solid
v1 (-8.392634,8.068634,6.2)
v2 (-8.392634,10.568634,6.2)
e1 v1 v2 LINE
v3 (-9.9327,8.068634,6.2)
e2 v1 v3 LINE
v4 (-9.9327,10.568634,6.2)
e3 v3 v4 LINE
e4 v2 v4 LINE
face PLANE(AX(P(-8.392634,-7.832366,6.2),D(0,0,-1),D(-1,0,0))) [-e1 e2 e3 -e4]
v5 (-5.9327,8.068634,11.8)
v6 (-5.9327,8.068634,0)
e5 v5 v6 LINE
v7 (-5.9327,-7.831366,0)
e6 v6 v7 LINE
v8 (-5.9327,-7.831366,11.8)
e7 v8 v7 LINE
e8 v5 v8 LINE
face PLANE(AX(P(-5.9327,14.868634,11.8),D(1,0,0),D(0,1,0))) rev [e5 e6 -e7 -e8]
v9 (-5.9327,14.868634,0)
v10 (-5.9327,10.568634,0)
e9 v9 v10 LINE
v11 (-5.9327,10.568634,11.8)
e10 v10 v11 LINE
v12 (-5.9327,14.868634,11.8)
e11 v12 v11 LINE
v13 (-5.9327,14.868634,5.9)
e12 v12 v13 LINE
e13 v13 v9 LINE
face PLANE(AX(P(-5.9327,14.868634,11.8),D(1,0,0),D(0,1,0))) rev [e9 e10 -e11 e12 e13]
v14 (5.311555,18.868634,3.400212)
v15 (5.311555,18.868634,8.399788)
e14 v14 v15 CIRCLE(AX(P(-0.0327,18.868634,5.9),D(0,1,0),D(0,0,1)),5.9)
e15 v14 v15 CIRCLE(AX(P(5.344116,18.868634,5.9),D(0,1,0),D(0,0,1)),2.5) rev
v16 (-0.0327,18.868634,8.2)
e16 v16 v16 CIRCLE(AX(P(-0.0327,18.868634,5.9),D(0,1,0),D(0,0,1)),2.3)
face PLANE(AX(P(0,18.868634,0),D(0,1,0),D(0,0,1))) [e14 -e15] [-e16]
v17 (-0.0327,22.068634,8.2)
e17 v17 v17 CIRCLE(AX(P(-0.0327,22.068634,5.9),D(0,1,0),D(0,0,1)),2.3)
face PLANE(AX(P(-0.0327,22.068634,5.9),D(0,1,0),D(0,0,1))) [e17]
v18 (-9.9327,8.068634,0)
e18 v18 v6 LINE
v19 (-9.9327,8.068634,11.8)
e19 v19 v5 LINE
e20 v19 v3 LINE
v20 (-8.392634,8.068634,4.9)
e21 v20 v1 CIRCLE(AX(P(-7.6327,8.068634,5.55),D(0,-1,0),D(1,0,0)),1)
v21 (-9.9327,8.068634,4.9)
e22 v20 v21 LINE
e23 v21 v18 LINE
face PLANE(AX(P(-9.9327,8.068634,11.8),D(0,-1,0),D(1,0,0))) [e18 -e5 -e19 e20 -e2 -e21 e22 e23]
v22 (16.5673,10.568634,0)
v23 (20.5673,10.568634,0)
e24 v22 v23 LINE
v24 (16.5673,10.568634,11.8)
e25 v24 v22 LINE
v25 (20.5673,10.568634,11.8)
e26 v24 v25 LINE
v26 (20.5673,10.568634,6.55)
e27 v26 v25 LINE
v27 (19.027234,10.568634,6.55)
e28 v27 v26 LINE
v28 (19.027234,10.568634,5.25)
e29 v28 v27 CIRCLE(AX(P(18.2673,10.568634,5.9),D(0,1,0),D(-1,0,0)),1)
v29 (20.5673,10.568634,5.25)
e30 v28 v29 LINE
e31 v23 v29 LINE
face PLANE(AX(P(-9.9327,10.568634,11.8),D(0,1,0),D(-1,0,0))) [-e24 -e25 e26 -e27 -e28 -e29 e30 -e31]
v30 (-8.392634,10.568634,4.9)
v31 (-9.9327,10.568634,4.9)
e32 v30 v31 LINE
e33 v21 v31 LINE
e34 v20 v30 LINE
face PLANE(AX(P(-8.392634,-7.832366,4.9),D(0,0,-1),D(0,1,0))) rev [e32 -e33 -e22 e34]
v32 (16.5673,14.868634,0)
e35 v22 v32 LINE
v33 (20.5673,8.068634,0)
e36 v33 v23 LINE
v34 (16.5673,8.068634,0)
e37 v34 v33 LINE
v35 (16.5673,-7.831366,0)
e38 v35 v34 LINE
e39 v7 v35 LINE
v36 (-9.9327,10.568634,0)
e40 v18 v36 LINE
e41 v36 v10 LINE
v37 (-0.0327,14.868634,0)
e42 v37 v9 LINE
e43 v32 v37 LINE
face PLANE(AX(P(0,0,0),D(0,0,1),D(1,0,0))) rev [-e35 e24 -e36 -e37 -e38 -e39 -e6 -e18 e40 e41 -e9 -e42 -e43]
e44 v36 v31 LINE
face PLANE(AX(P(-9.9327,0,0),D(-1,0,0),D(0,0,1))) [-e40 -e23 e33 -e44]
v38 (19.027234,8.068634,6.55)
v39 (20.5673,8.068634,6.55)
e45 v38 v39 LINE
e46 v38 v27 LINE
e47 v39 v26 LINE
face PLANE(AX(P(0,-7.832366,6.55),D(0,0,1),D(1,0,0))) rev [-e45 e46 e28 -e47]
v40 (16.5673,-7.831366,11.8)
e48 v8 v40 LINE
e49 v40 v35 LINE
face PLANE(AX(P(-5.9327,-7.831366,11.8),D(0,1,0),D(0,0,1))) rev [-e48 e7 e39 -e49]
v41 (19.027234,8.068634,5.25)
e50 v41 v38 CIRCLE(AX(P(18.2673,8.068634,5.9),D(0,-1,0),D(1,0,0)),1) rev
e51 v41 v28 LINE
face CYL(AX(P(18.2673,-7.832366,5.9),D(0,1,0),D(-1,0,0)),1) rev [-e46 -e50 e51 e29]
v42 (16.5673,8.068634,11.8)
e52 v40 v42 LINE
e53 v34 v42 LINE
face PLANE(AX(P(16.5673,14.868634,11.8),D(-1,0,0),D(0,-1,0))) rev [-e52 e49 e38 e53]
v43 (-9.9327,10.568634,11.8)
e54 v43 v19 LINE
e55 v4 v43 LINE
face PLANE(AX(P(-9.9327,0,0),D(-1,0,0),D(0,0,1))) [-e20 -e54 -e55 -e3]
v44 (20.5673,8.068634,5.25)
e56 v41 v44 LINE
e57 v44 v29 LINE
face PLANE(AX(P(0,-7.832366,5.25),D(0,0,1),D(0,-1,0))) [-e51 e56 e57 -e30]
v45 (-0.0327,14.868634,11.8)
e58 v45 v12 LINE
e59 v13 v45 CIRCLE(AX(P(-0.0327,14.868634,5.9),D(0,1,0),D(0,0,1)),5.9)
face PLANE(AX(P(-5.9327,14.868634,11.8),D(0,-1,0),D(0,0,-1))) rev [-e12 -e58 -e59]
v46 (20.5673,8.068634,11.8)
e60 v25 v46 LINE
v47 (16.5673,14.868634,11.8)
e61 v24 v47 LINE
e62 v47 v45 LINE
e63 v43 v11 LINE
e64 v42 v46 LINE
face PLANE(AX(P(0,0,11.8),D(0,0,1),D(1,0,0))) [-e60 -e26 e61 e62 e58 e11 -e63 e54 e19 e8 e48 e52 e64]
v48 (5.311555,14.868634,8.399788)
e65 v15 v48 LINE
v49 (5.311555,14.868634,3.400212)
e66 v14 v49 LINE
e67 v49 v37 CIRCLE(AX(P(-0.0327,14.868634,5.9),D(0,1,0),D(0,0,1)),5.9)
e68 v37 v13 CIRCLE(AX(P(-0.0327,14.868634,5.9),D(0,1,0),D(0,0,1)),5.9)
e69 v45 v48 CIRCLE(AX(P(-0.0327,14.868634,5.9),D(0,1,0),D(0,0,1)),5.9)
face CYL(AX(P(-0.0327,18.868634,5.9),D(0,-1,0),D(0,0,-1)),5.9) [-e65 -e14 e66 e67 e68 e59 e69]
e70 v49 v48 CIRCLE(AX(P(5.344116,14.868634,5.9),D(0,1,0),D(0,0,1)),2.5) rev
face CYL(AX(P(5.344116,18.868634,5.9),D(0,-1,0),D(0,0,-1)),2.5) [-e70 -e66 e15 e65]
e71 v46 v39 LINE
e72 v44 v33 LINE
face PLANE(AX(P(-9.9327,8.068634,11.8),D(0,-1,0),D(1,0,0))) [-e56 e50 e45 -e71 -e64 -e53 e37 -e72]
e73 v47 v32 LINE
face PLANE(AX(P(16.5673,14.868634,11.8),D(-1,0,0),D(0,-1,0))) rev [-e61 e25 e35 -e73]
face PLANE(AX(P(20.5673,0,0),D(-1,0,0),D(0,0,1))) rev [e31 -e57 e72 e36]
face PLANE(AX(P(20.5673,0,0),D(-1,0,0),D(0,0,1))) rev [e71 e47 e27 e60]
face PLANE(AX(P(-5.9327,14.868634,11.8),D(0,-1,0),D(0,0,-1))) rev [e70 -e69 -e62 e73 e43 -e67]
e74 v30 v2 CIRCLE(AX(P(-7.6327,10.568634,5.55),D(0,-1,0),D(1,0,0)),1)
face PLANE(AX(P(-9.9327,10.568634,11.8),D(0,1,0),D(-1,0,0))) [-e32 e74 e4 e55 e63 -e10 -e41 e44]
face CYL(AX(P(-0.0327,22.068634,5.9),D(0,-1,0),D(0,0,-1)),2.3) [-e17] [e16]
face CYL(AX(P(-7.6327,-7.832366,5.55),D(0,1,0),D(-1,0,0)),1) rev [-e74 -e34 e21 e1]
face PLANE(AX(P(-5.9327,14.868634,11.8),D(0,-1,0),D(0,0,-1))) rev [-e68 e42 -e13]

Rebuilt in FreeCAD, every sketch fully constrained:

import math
import FreeCAD as App
import Part
import Sketcher

V = App.Vector
Q = App.Units.Quantity

doc = App.newDocument("Part")
body = doc.addObject("PartDesign::Body", "Body")

# Sketch on XY plane
sketch1 = body.newObject("Sketcher::SketchObject", "Sketch")
sketch1.AttachmentSupport = (doc.getObject("XY_Plane"), [""])
sketch1.MapMode = "FlatFace"
sketch1.addGeometry(Part.LineSegment(V(-5.9327, 14.868634, 0), V(-5.9327, -7.831366, 0)), False)
sketch1.addGeometry(Part.LineSegment(V(-5.9327, -7.831366, 0), V(16.5673, -7.831366, 0)), False)
sketch1.addGeometry(Part.LineSegment(V(16.5673, -7.831366, 0), V(16.5673, 14.868634, 0)), False)
sketch1.addGeometry(Part.LineSegment(V(16.5673, 14.868634, 0), V(-5.9327, 14.868634, 0)), False)
sketch1.addConstraint(Sketcher.Constraint("Coincident", 0, 2, 1, 1))
sketch1.addConstraint(Sketcher.Constraint("Coincident", 1, 2, 2, 1))
sketch1.addConstraint(Sketcher.Constraint("Coincident", 2, 2, 3, 1))
sketch1.addConstraint(Sketcher.Constraint("Coincident", 3, 2, 0, 1))
sketch1.addConstraint(Sketcher.Constraint("Vertical", 0))
sketch1.addConstraint(Sketcher.Constraint("Horizontal", 1))
sketch1.addConstraint(Sketcher.Constraint("Vertical", 2))
sketch1.addConstraint(Sketcher.Constraint("Horizontal", 3))
sketch1.addConstraint(Sketcher.Constraint("DistanceX", 1, 1, 1, 2, Q("22.5 mm")))
sketch1.addConstraint(Sketcher.Constraint("DistanceY", 0, 2, 0, 1, Q("22.7 mm")))
sketch1.addConstraint(Sketcher.Constraint("DistanceX", 0, 2, -1, 1, Q("5.9327 mm")))
sketch1.addConstraint(Sketcher.Constraint("DistanceY", 0, 2, -1, 1, Q("7.831366 mm")))
pad1 = body.newObject("PartDesign::Pad", "Pad")
pad1.Profile = sketch1
pad1.Length = 11.8

# Sketch on XZ plane
sketch2 = body.newObject("Sketcher::SketchObject", "Sketch001")
sketch2.AttachmentSupport = (doc.getObject("XZ_Plane"), [""])
sketch2.MapMode = "FlatFace"
sketch2.AttachmentOffset = App.Placement(V(0, 0, -14.868634), App.Rotation())
sketch2.addGeometry(Part.ArcOfCircle(Part.Circle(V(-0.0327, 5.9, 0), V(0, 0, 1), 5.9), math.radians(25.067955), math.radians(334.932045)), False)
sketch2.addGeometry(Part.ArcOfCircle(Part.Circle(V(5.344116, 5.9, 0), V(0, 0, 1), 2.5), math.radians(-90.746252), math.radians(90.746252)), False)
sketch2.addConstraint(Sketcher.Constraint("Coincident", 0, 1, 1, 2))
sketch2.addConstraint(Sketcher.Constraint("Coincident", 1, 1, 0, 2))
sketch2.addConstraint(Sketcher.Constraint("Horizontal", 0, 3, 1, 3))
sketch2.addConstraint(Sketcher.Constraint("Radius", 0, Q("5.9 mm")))
sketch2.addConstraint(Sketcher.Constraint("Radius", 1, Q("2.5 mm")))
sketch2.addConstraint(Sketcher.Constraint("DistanceY", -1, 1, 0, 3, Q("5.9 mm")))
sketch2.addConstraint(Sketcher.Constraint("DistanceX", 0, 3, -1, 1, Q("0.0327 mm")))
sketch2.addConstraint(Sketcher.Constraint("DistanceX", 0, 1, 1, 3, Q("0.03256 mm")))
pad2 = body.newObject("PartDesign::Pad", "Pad001")
pad2.Profile = sketch2
pad2.Length = 4
pad2.Reversed = True

# Sketch on XZ plane
sketch3 = body.newObject("Sketcher::SketchObject", "Sketch002")
sketch3.AttachmentSupport = (doc.getObject("XZ_Plane"), [""])
sketch3.MapMode = "FlatFace"
sketch3.AttachmentOffset = App.Placement(V(0, 0, -18.868634), App.Rotation())
sketch3.addGeometry(Part.Circle(V(-0.0327, 5.9, 0), V(0, 0, 1), 2.3), False)
sketch3.addConstraint(Sketcher.Constraint("Diameter", 0, Q("4.6 mm")))
sketch3.addConstraint(Sketcher.Constraint("DistanceY", -1, 1, 0, 3, Q("5.9 mm")))
sketch3.addConstraint(Sketcher.Constraint("DistanceX", 0, 3, -1, 1, Q("0.0327 mm")))
pad3 = body.newObject("PartDesign::Pad", "Pad002")
pad3.Profile = sketch3
pad3.Length = 3.2
pad3.Reversed = True

# Sketch on YZ plane
sketch4 = body.newObject("Sketcher::SketchObject", "Sketch003")
sketch4.AttachmentSupport = (doc.getObject("YZ_Plane"), [""])
sketch4.MapMode = "FlatFace"
sketch4.AttachmentOffset = App.Placement(V(0, 0, 16.5673), App.Rotation())
sketch4.addGeometry(Part.LineSegment(V(10.568634, 11.8, 0), V(8.068634, 11.8, 0)), False)
sketch4.addGeometry(Part.LineSegment(V(8.068634, 11.8, 0), V(8.068634, 0, 0)), False)
sketch4.addGeometry(Part.LineSegment(V(8.068634, 0, 0), V(10.568634, 0, 0)), False)
sketch4.addGeometry(Part.LineSegment(V(10.568634, 0, 0), V(10.568634, 11.8, 0)), False)
sketch4.addConstraint(Sketcher.Constraint("Coincident", 0, 2, 1, 1))
sketch4.addConstraint(Sketcher.Constraint("Coincident", 1, 2, 2, 1))
sketch4.addConstraint(Sketcher.Constraint("Coincident", 2, 2, 3, 1))
sketch4.addConstraint(Sketcher.Constraint("Coincident", 3, 2, 0, 1))
sketch4.addConstraint(Sketcher.Constraint("Horizontal", 0))
sketch4.addConstraint(Sketcher.Constraint("Vertical", 1))
sketch4.addConstraint(Sketcher.Constraint("Horizontal", 2))
sketch4.addConstraint(Sketcher.Constraint("Vertical", 3))
sketch4.addConstraint(Sketcher.Constraint("PointOnObject", 1, 2, -1))
sketch4.addConstraint(Sketcher.Constraint("DistanceX", 0, 2, 0, 1, Q("2.5 mm")))
sketch4.addConstraint(Sketcher.Constraint("DistanceY", 1, 2, 1, 1, Q("11.8 mm")))
sketch4.addConstraint(Sketcher.Constraint("DistanceX", -1, 1, 0, 2, Q("8.068634 mm")))
pad4 = body.newObject("PartDesign::Pad", "Pad003")
pad4.Profile = sketch4
pad4.Type = "TwoLengths"
pad4.Length = 4
pad4.Length2 = 26.5

# Sketch on XZ plane
sketch5 = body.newObject("Sketcher::SketchObject", "Sketch004")
sketch5.AttachmentSupport = (doc.getObject("XZ_Plane"), [""])
sketch5.MapMode = "FlatFace"
sketch5.AttachmentOffset = App.Placement(V(0, 0, -10.568634), App.Rotation())
sketch5.addGeometry(Part.LineSegment(V(20.5673, 6.55, 0), V(20.5673, 5.25, 0)), False)
sketch5.addGeometry(Part.LineSegment(V(20.5673, 5.25, 0), V(19.027234, 5.25, 0)), False)
sketch5.addGeometry(Part.ArcOfCircle(Part.Circle(V(18.2673, 5.9, 0), V(0, 0, 1), 1), math.radians(40.541602), math.radians(319.458398)), False)
sketch5.addGeometry(Part.LineSegment(V(19.027234, 6.55, 0), V(20.5673, 6.55, 0)), False)
sketch5.addConstraint(Sketcher.Constraint("Coincident", 0, 2, 1, 1))
sketch5.addConstraint(Sketcher.Constraint("Coincident", 1, 2, 2, 2))
sketch5.addConstraint(Sketcher.Constraint("Coincident", 2, 1, 3, 1))
sketch5.addConstraint(Sketcher.Constraint("Coincident", 3, 2, 0, 1))
sketch5.addConstraint(Sketcher.Constraint("Vertical", 0))
sketch5.addConstraint(Sketcher.Constraint("Horizontal", 1))
sketch5.addConstraint(Sketcher.Constraint("Horizontal", 3))
sketch5.addConstraint(Sketcher.Constraint("Vertical", 1, 2, 2, 1))
sketch5.addConstraint(Sketcher.Constraint("Radius", 2, Q("1 mm")))
sketch5.addConstraint(Sketcher.Constraint("DistanceY", 0, 2, 0, 1, Q("1.3 mm")))
sketch5.addConstraint(Sketcher.Constraint("DistanceY", -1, 1, 2, 3, Q("5.9 mm")))
sketch5.addConstraint(Sketcher.Constraint("DistanceX", 2, 3, 0, 2, Q("2.3 mm")))
sketch5.addConstraint(Sketcher.Constraint("DistanceX", -1, 1, 2, 3, Q("18.2673 mm")))
pocket1 = body.newObject("PartDesign::Pocket", "Pocket")
pocket1.Profile = sketch5
pocket1.Type = "UpToFirst"
pocket1.Reversed = True

# Sketch on XZ plane
sketch6 = body.newObject("Sketcher::SketchObject", "Sketch005")
sketch6.AttachmentSupport = (doc.getObject("XZ_Plane"), [""])
sketch6.MapMode = "FlatFace"
sketch6.AttachmentOffset = App.Placement(V(0, 0, -10.568634), App.Rotation())
sketch6.addGeometry(Part.ArcOfCircle(Part.Circle(V(-7.6327, 5.55, 0), V(0, 0, 1), 1), math.radians(-139.458398), math.radians(139.458398)), False)
sketch6.addGeometry(Part.LineSegment(V(-8.392634, 4.9, 0), V(-9.9327, 4.9, 0)), False)
sketch6.addGeometry(Part.LineSegment(V(-9.9327, 4.9, 0), V(-9.9327, 6.2, 0)), False)
sketch6.addGeometry(Part.LineSegment(V(-9.9327, 6.2, 0), V(-8.392634, 6.2, 0)), False)
sketch6.addConstraint(Sketcher.Constraint("Coincident", 0, 1, 1, 1))
sketch6.addConstraint(Sketcher.Constraint("Coincident", 1, 2, 2, 1))
sketch6.addConstraint(Sketcher.Constraint("Coincident", 2, 2, 3, 1))
sketch6.addConstraint(Sketcher.Constraint("Coincident", 3, 2, 0, 2))
sketch6.addConstraint(Sketcher.Constraint("Horizontal", 1))
sketch6.addConstraint(Sketcher.Constraint("Vertical", 2))
sketch6.addConstraint(Sketcher.Constraint("Horizontal", 3))
sketch6.addConstraint(Sketcher.Constraint("Vertical", 0, 1, 3, 2))
sketch6.addConstraint(Sketcher.Constraint("Radius", 0, Q("1 mm")))
sketch6.addConstraint(Sketcher.Constraint("DistanceY", 2, 1, 2, 2, Q("1.3 mm")))
sketch6.addConstraint(Sketcher.Constraint("DistanceY", -1, 1, 0, 1, Q("4.9 mm")))
sketch6.addConstraint(Sketcher.Constraint("DistanceX", 1, 2, 0, 3, Q("2.3 mm")))
sketch6.addConstraint(Sketcher.Constraint("DistanceX", 0, 3, -1, 1, Q("7.6327 mm")))
pocket2 = body.newObject("PartDesign::Pocket", "Pocket001")
pocket2.Profile = sketch6
pocket2.Type = "UpToFirst"
pocket2.Reversed = True

doc.recompute()
